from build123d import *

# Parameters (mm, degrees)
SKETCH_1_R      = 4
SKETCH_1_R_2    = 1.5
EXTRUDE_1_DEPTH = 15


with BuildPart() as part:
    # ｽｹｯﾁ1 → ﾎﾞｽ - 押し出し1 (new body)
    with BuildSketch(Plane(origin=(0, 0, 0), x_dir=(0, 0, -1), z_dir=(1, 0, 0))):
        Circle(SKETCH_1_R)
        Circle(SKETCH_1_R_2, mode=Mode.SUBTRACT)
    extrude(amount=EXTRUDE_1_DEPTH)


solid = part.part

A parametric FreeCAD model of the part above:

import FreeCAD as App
import Part
import Sketcher
Q = App.Units.Quantity

doc = App.newDocument("Part")
body = doc.addObject("PartDesign::Body", "Body")

# Sketch on YZ plane
sketch1 = body.newObject("Sketcher::SketchObject", "Sketch")
sketch1.AttachmentSupport = (doc.getObject("YZ_Plane"), [""])
sketch1.MapMode = "FlatFace"
sketch1.addGeometry(Part.Circle(App.Vector(0, 0, 0), App.Vector(0, 0, 1), 4), False)
sketch1.addGeometry(Part.Circle(App.Vector(0, 0, 0), App.Vector(0, 0, 1), 1.5), False)
sketch1.addConstraint(Sketcher.Constraint("Coincident", 0, 3, -1, 1))
sketch1.addConstraint(Sketcher.Constraint("Coincident", 1, 3, -1, 1))
sketch1.addConstraint(Sketcher.Constraint("Diameter", 0, Q("8 mm")))
sketch1.addConstraint(Sketcher.Constraint("Diameter", 1, Q("3 mm")))
pad1 = body.newObject("PartDesign::Pad", "Pad")
pad1.Profile = sketch1
pad1.Length = 15

doc.recompute()
